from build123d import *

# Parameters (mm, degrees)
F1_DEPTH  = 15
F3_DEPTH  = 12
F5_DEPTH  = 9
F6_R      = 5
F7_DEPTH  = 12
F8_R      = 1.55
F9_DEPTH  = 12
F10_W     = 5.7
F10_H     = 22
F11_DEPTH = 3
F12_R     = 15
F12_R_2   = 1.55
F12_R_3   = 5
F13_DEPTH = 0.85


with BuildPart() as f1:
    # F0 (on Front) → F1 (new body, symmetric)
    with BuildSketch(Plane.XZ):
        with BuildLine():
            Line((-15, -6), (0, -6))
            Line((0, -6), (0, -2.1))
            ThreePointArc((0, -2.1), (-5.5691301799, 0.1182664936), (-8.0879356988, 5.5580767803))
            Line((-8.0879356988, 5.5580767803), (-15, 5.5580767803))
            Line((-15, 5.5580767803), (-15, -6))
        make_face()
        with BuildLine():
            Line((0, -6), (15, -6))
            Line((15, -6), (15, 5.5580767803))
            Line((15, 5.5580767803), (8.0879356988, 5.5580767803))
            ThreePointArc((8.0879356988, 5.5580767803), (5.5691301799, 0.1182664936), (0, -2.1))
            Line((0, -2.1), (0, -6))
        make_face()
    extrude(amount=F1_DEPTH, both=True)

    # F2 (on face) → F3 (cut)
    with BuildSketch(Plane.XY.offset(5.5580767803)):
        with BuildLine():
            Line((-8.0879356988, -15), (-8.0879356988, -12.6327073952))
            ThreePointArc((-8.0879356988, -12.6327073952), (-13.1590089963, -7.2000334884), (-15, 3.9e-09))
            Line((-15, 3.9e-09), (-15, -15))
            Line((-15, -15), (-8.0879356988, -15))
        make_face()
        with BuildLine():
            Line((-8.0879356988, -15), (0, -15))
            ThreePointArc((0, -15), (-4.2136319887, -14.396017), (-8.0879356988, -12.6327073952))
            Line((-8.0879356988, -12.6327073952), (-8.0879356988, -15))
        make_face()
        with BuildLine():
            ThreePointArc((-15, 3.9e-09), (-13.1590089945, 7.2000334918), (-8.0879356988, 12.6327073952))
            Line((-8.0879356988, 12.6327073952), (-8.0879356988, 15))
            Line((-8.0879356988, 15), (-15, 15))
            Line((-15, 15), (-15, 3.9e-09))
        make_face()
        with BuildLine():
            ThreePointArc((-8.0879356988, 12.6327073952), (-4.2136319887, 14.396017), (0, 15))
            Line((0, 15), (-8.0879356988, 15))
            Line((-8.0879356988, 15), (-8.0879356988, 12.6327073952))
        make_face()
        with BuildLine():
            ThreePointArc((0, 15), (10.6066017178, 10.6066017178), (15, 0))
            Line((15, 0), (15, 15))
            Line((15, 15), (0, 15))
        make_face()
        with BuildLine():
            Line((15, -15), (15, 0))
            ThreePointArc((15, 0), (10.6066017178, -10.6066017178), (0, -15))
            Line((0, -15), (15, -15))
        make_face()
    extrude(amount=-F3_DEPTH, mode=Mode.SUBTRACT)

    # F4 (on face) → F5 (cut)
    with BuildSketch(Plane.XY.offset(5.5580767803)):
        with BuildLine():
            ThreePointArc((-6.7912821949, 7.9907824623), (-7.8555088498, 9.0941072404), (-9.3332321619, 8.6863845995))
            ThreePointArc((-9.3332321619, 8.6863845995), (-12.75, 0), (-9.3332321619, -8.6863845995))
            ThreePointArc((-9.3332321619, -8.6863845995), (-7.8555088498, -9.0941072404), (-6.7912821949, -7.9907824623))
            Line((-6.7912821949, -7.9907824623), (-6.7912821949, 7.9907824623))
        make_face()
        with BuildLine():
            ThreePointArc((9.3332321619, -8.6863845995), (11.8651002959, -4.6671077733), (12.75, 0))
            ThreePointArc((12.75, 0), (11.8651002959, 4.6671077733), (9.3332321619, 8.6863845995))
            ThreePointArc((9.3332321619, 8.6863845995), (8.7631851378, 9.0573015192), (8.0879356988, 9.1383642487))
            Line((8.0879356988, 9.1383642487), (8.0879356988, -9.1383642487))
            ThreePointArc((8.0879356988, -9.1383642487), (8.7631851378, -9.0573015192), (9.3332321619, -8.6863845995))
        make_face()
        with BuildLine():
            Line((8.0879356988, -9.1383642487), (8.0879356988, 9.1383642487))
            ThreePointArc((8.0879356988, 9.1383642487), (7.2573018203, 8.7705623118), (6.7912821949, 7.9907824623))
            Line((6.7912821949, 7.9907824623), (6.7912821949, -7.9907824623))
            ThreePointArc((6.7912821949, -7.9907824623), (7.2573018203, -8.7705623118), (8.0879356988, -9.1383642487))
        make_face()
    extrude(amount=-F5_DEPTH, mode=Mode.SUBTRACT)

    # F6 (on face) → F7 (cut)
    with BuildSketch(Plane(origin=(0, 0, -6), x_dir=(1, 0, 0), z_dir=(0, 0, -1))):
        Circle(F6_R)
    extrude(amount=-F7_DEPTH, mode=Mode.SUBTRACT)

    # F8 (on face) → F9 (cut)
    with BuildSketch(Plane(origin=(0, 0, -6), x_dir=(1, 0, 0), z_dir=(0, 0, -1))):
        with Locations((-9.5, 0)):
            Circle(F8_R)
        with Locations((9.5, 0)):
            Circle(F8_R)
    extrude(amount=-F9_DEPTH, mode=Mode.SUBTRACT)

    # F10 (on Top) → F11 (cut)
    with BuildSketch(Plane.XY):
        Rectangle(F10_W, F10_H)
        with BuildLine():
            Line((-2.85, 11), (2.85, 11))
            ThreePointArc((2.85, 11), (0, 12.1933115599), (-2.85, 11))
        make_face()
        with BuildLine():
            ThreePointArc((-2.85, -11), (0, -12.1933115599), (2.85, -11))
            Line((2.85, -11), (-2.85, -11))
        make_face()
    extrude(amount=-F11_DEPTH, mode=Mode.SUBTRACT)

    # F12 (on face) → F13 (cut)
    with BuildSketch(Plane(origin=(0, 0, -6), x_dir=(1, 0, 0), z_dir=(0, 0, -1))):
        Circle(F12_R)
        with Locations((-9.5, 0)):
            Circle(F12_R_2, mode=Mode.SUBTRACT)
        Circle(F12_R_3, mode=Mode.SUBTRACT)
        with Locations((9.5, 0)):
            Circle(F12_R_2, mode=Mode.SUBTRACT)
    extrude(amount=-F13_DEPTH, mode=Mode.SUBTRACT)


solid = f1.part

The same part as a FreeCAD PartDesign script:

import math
import FreeCAD as App
import Part
import Sketcher

V = App.Vector
Q = App.Units.Quantity

doc = App.newDocument("Part")
body = doc.addObject("PartDesign::Body", "Body")

sketch1 = body.newObject("Sketcher::SketchObject", "Sketch")
sketch1.AttachmentSupport = (doc.getObject("XZ_Plane"), [""])
sketch1.MapMode = "FlatFace"
sketch1.addGeometry([
    Part.LineSegment(V(-15, -6, 0), V(15, -6, 0)),
    Part.LineSegment(V(15, -6, 0), V(15, 6, 0)),
    Part.LineSegment(V(15, 6, 0), V(8, 6, 0)),
    Part.ArcOfCircle(Part.Circle(V(0, 6, 0), V(0, 0, 1), 8), math.radians(-90), math.radians(-3)),
    Part.ArcOfCircle(Part.Circle(V(0, 6, 0), V(0, 0, 1), 8), math.radians(-177), math.radians(-90)),
    Part.LineSegment(V(-8, 6, 0), V(-15, 6, 0)),
    Part.LineSegment(V(-15, 6, 0), V(-15, -6, 0)),
], False)
sketch1.addConstraint([
    Sketcher.Constraint("Coincident", 0, 2, 1, 1),
    Sketcher.Constraint("Coincident", 1, 2, 2, 1),
    Sketcher.Constraint("Coincident", 2, 2, 3, 2),
    Sketcher.Constraint("Tangent", 3, 1, 4, 2),
    Sketcher.Constraint("Coincident", 4, 1, 5, 1),
    Sketcher.Constraint("Coincident", 5, 2, 6, 1),
    Sketcher.Constraint("Coincident", 6, 2, 0, 1),
    Sketcher.Constraint("Horizontal", 0),
    Sketcher.Constraint("Vertical", 1),
    Sketcher.Constraint("Horizontal", 2),
    Sketcher.Constraint("Horizontal", 5),
    Sketcher.Constraint("Vertical", 6),
    Sketcher.Constraint("Equal", 3, 4),
    Sketcher.Constraint("Symmetric", 2, 2, 4, 1, -2),
    Sketcher.Constraint("PointOnObject", 3, 1, -2),
    Sketcher.Constraint("Equal", 2, 5),
    Sketcher.Constraint("Radius", 3, Q("8.1 mm")),
    Sketcher.Constraint("DistanceX", 0, 1, 0, 2, Q("30 mm")),
    Sketcher.Constraint("DistanceY", -1, 1, 3, 3, Q("6 mm")),
    Sketcher.Constraint("DistanceY", 0, 2, -1, 1, Q("6 mm")),
    Sketcher.Constraint("DistanceX", 2, 2, 2, 1, Q("6.912064 mm")),
])
pad1 = body.newObject("PartDesign::Pad", "Pad")
pad1.Profile = sketch1
pad1.Length = 30
pad1.Midplane = True

sketch2 = body.newObject("Sketcher::SketchObject", "Sketch001")
sketch2.AttachmentSupport = (doc.getObject("XY_Plane"), [""])
sketch2.MapMode = "FlatFace"
sketch2.AttachmentOffset = App.Placement(V(0, 0, 5.558077), App.Rotation())
sketch2.addGeometry([
    Part.ArcOfCircle(Part.Circle(V(0, 0, 0), V(0, 0, 1), 15), math.radians(180), math.radians(237)),
    Part.LineSegment(V(-15, 0, 0), V(-15, -15, 0)),
    Part.LineSegment(V(-15, -15, 0), V(0, -15, 0)),
    Part.ArcOfCircle(Part.Circle(V(0, 0, 0), V(0, 0, 1), 15), math.radians(-123), math.radians(-90)),
    Part.ArcOfCircle(Part.Circle(V(0, 0, 0), V(0, 0, 1), 15), math.radians(123), math.radians(180)),
    Part.ArcOfCircle(Part.Circle(V(0, 0, 0), V(0, 0, 1), 15), math.radians(90), math.radians(123)),
    Part.LineSegment(V(0, 15, 0), V(-15, 15, 0)),
    Part.LineSegment(V(-15, 15, 0), V(-15, 0, 0)),
    Part.ArcOfCircle(Part.Circle(V(0, 0, 0), V(0, 0, 1), 15), math.radians(0), math.radians(90)),
    Part.LineSegment(V(15, 0, 0), V(15, 15, 0)),
    Part.LineSegment(V(15, 15, 0), V(0, 15, 0)),
    Part.LineSegment(V(15, -15, 0), V(15, 0, 0)),
    Part.ArcOfCircle(Part.Circle(V(0, 0, 0), V(0, 0, 1), 15), math.radians(-90), math.radians(0)),
    Part.LineSegment(V(0, -15, 0), V(15, -15, 0)),
], False)
sketch2.addConstraint([
    Sketcher.Constraint("Tangent", 0, 1, 1, 1),
    Sketcher.Constraint("Coincident", 1, 2, 2, 1),
    Sketcher.Constraint("Tangent", 2, 2, 3, 2),
    Sketcher.Constraint("Tangent", 3, 1, 0, 2),
    Sketcher.Constraint("Tangent", 4, 1, 5, 2),
    Sketcher.Constraint("Tangent", 5, 1, 6, 1),
    Sketcher.Constraint("Coincident", 6, 2, 7, 1),
    Sketcher.Constraint("Tangent", 7, 2, 4, 2),
    Sketcher.Constraint("Tangent", 8, 1, 9, 1),
    Sketcher.Constraint("Coincident", 9, 2, 10, 1),
    Sketcher.Constraint("Tangent", 10, 2, 8, 2),
    Sketcher.Constraint("Tangent", 11, 2, 12, 2),
    Sketcher.Constraint("Tangent", 12, 1, 13, 1),
    Sketcher.Constraint("Coincident", 13, 2, 11, 1),
    Sketcher.Constraint("Vertical", 1),
    Sketcher.Constraint("Horizontal", 2),
    Sketcher.Constraint("Horizontal", 6),
    Sketcher.Constraint("Vertical", 7),
    Sketcher.Constraint("Vertical", 9),
    Sketcher.Constraint("Horizontal", 10),
    Sketcher.Constraint("Vertical", 11),
    Sketcher.Constraint("Horizontal", 13),
    Sketcher.Constraint("Coincident", 0, 3, -1, 1),
    Sketcher.Constraint("Coincident", 4, 3, -1, 1),
    Sketcher.Constraint("Coincident", 8, 3, -1, 1),
    Sketcher.Constraint("Coincident", 12, 3, -1, 1),
    Sketcher.Constraint("Coincident", 10, 2, 5, 1),
    Sketcher.Constraint("Coincident", 12, 1, 2, 2),
    Sketcher.Constraint("Equal", 3, 4),
    Sketcher.Constraint("Vertical", 3, 1, 4, 1),
    Sketcher.Constraint("Radius", 0, Q("15 mm")),
    Sketcher.Constraint("DistanceX", 3, 1, -1, 1, Q("8.087936 mm")),
])
pocket1 = body.newObject("PartDesign::Pocket", "Pocket")
pocket1.Profile = sketch2
pocket1.Length = 12

sketch3 = body.newObject("Sketcher::SketchObject", "Sketch002")
sketch3.AttachmentSupport = (doc.getObject("XY_Plane"), [""])
sketch3.MapMode = "FlatFace"
sketch3.AttachmentOffset = App.Placement(V(0, 0, 5.558077), App.Rotation())
sketch3.addGeometry([
    Part.ArcOfCircle(Part.Circle(V(-8.3, 7.6, 0), V(0, 0, 1), 1.5), math.radians(13), math.radians(136)),
    Part.ArcOfCircle(Part.Circle(V(0, 0, 0), V(0, 0, 1), 12.8), math.radians(137), math.radians(223)),
    Part.ArcOfCircle(Part.Circle(V(-8.3, -7.6, 0), V(0, 0, 1), 1.5), math.radians(-136), math.radians(-13)),
    Part.LineSegment(V(-6.8, -8, 0), V(-6.8, 8, 0)),
    Part.ArcOfCircle(Part.Circle(V(0, 0, 0), V(0, 0, 1), 12.8), math.radians(-43), math.radians(0)),
    Part.ArcOfCircle(Part.Circle(V(0, 0, 0), V(0, 0, 1), 12.8), math.radians(0), math.radians(43)),
    Part.ArcOfCircle(Part.Circle(V(8.3, 7.6, 0), V(0, 0, 1), 1.5), math.radians(44), math.radians(96)),
    Part.ArcOfCircle(Part.Circle(V(8.3, 7.6, 0), V(0, 0, 1), 1.5), math.radians(96), math.radians(167)),
    Part.LineSegment(V(6.8, 8, 0), V(6.8, -8, 0)),
    Part.ArcOfCircle(Part.Circle(V(8.3, -7.6, 0), V(0, 0, 1), 1.5), math.radians(-167), math.radians(-96)),
    Part.ArcOfCircle(Part.Circle(V(8.3, -7.6, 0), V(0, 0, 1), 1.5), math.radians(-96), math.radians(-44)),
], False)
sketch3.addConstraint([
    Sketcher.Constraint("Coincident", 0, 2, 1, 1),
    Sketcher.Constraint("Coincident", 1, 2, 2, 1),
    Sketcher.Constraint("Coincident", 2, 2, 3, 1),
    Sketcher.Constraint("Coincident", 3, 2, 0, 1),
    Sketcher.Constraint("Tangent", 4, 2, 5, 1),
    Sketcher.Constraint("Coincident", 5, 2, 6, 1),
    Sketcher.Constraint("Tangent", 6, 2, 7, 1),
    Sketcher.Constraint("Coincident", 7, 2, 8, 1),
    Sketcher.Constraint("Coincident", 8, 2, 9, 1),
    Sketcher.Constraint("Tangent", 9, 2, 10, 1),
    Sketcher.Constraint("Coincident", 10, 2, 4, 1),
    Sketcher.Constraint("Vertical", 3),
    Sketcher.Constraint("Vertical", 8),
    Sketcher.Constraint("Coincident", 1, 3, -1, 1),
    Sketcher.Constraint("Coincident", 4, 3, -1, 1),
    Sketcher.Constraint("Equal", 0, 2),
    Sketcher.Constraint("Equal", 1, 4),
    Sketcher.Constraint("Equal", 4, 5),
    Sketcher.Constraint("Equal", 2, 6),
    Sketcher.Constraint("Equal", 6, 7),
    Sketcher.Constraint("Equal", 7, 9),
    Sketcher.Constraint("Equal", 9, 10),
    Sketcher.Constraint("Symmetric", 2, 3, 6, 3, -1, 1),
    Sketcher.Constraint("Symmetric", 0, 3, 9, 3, -1, 1),
    Sketcher.Constraint("Symmetric", 0, 3, 6, 3, -2),
    Sketcher.Constraint("PointOnObject", 4, 2, -1),
    Sketcher.Constraint("Horizontal", 3, 2, 7, 2),
    Sketcher.Constraint("Vertical", 6, 2, 9, 2),
    Sketcher.Constraint("Radius", 0, Q("1.5 mm")),
    Sketcher.Constraint("Radius", 1, Q("12.75 mm")),
    Sketcher.Constraint("DistanceY", -1, 1, 0, 3, Q("7.647301 mm")),
    Sketcher.Constraint("DistanceY", 3, 1, 3, 2, Q("15.981565 mm")),
    Sketcher.Constraint("DistanceX", 1, 2, 2, 2, Q("2.54195 mm")),
    Sketcher.Constraint("DistanceY", 5, 2, 6, 2, Q("0.45198 mm")),
])
pocket2 = body.newObject("PartDesign::Pocket", "Pocket001")
pocket2.Profile = sketch3
pocket2.Length = 9

sketch4 = body.newObject("Sketcher::SketchObject", "Sketch003")
sketch4.AttachmentSupport = (doc.getObject("XY_Plane"), [""])
sketch4.MapMode = "FlatFace"
sketch4.AttachmentOffset = App.Placement(V(0, 0, -6), App.Rotation())
sketch4.addGeometry(Part.Circle(V(0, 0, 0), V(0, 0, 1), 5), False)
sketch4.addConstraint([
    Sketcher.Constraint("Coincident", 0, 3, -1, 1),
    Sketcher.Constraint("Diameter", 0, Q("10 mm")),
])
pocket3 = body.newObject("PartDesign::Pocket", "Pocket002")
pocket3.Profile = sketch4
pocket3.Length = 12
pocket3.Reversed = True

sketch5 = body.newObject("Sketcher::SketchObject", "Sketch004")
sketch5.AttachmentSupport = (doc.getObject("XY_Plane"), [""])
sketch5.MapMode = "FlatFace"
sketch5.AttachmentOffset = App.Placement(V(0, 0, -6), App.Rotation())
sketch5.addGeometry([
    Part.Circle(V(-9.5, 0, 0), V(0, 0, 1), 1.6),
    Part.Circle(V(9.5, 0, 0), V(0, 0, 1), 1.6),
], False)
sketch5.addConstraint([
    Sketcher.Constraint("Equal", 0, 1),
    Sketcher.Constraint("Symmetric", 0, 3, 1, 3, -1, 1),
    Sketcher.Constraint("PointOnObject", 0, 3, -1),
    Sketcher.Constraint("Diameter", 0, Q("3.1 mm")),
    Sketcher.Constraint("DistanceX", 0, 3, 1, 3, Q("19 mm")),
])
pocket4 = body.newObject("PartDesign::Pocket", "Pocket003")
pocket4.Profile = sketch5
pocket4.Length = 12
pocket4.Reversed = True

sketch6 = body.newObject("Sketcher::SketchObject", "Sketch005")
sketch6.AttachmentSupport = (doc.getObject("XY_Plane"), [""])
sketch6.MapMode = "FlatFace"
sketch6.addGeometry([
    Part.LineSegment(V(-2.9, 11, 0), V(-2.9, -11, 0)),
    Part.ArcOfCircle(Part.Circle(V(0, -8.2, 0), V(0, 0, 1), 4), math.radians(-135), math.radians(-45)),
    Part.LineSegment(V(2.9, -11, 0), V(2.9, 11, 0)),
    Part.ArcOfCircle(Part.Circle(V(0, 8.2, 0), V(0, 0, 1), 4), math.radians(45), math.radians(135)),
], False)
sketch6.addConstraint([
    Sketcher.Constraint("Coincident", 0, 2, 1, 1),
    Sketcher.Constraint("Coincident", 1, 2, 2, 1),
    Sketcher.Constraint("Coincident", 2, 2, 3, 1),
    Sketcher.Constraint("Coincident", 3, 2, 0, 1),
    Sketcher.Constraint("Vertical", 0),
    Sketcher.Constraint("Vertical", 2),
    Sketcher.Constraint("Equal", 1, 3),
    Sketcher.Constraint("Symmetric", 1, 3, 3, 3, -1, 1),
    Sketcher.Constraint("Symmetric", 0, 2, 1, 2, -2),
    Sketcher.Constraint("Radius", 1, Q("4 mm")),
    Sketcher.Constraint("DistanceY", 0, 2, 0, 1, Q("22 mm")),
    Sketcher.Constraint("DistanceX", 0, 2, 1, 2, Q("5.7 mm")),
])
pocket5 = body.newObject("PartDesign::Pocket", "Pocket004")
pocket5.Profile = sketch6
pocket5.Length = 3

sketch7 = body.newObject("Sketcher::SketchObject", "Sketch006")
sketch7.AttachmentSupport = (doc.getObject("XY_Plane"), [""])
sketch7.MapMode = "FlatFace"
sketch7.AttachmentOffset = App.Placement(V(0, 0, -6), App.Rotation())
sketch7.addGeometry([
    Part.Circle(V(0, 0, 0), V(0, 0, 1), 15),
    Part.Circle(V(-9.5, 0, 0), V(0, 0, 1), 1.6),
    Part.Circle(V(0, 0, 0), V(0, 0, 1), 5),
    Part.Circle(V(9.5, 0, 0), V(0, 0, 1), 1.6),
], False)
sketch7.addConstraint([
    Sketcher.Constraint("Coincident", 0, 3, -1, 1),
    Sketcher.Constraint("Coincident", 2, 3, -1, 1),
    Sketcher.Constraint("Equal", 1, 3),
    Sketcher.Constraint("Symmetric", 1, 3, 3, 3, -1, 1),
    Sketcher.Constraint("PointOnObject", 1, 3, -1),
    Sketcher.Constraint("Diameter", 0, Q("30 mm")),
    Sketcher.Constraint("Diameter", 2, Q("10 mm")),
    Sketcher.Constraint("Diameter", 1, Q("3.1 mm")),
    Sketcher.Constraint("DistanceX", 1, 3, 3, 3, Q("19 mm")),
])
pocket6 = body.newObject("PartDesign::Pocket", "Pocket005")
pocket6.Profile = sketch7
pocket6.Length = 0.85
pocket6.Reversed = True

doc.recompute()
